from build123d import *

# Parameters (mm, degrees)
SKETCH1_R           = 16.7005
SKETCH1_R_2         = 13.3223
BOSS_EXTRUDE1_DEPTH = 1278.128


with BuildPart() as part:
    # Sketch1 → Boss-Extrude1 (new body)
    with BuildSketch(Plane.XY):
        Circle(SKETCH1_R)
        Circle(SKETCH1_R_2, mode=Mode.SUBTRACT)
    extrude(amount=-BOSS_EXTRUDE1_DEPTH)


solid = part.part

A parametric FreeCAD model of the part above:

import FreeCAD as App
import Part
import Sketcher
Q = App.Units.Quantity

doc = App.newDocument("Part")
body = doc.addObject("PartDesign::Body", "Body")

sketch1 = body.newObject("Sketcher::SketchObject", "Sketch")
sketch1.AttachmentSupport = (doc.getObject("XY_Plane"), [""])
sketch1.MapMode = "FlatFace"
sketch1.addGeometry(Part.Circle(App.Vector(0, 0, 0), App.Vector(0, 0, 1), 17), False)
sketch1.addGeometry(Part.Circle(App.Vector(0, 0, 0), App.Vector(0, 0, 1), 13), False)
sketch1.addConstraint(Sketcher.Constraint("Coincident", 0, 3, -1, 1))
sketch1.addConstraint(Sketcher.Constraint("Coincident", 1, 3, -1, 1))
sketch1.addConstraint(Sketcher.Constraint("Diameter", 0, Q("1.315 in")))
sketch1.addConstraint(Sketcher.Constraint("Diameter", 1, Q("1.049 in")))
pad1 = body.newObject("PartDesign::Pad", "Pad")
pad1.Profile = sketch1
pad1.Length = Q("50.32 in")
pad1.Reversed = True

doc.recompute()
